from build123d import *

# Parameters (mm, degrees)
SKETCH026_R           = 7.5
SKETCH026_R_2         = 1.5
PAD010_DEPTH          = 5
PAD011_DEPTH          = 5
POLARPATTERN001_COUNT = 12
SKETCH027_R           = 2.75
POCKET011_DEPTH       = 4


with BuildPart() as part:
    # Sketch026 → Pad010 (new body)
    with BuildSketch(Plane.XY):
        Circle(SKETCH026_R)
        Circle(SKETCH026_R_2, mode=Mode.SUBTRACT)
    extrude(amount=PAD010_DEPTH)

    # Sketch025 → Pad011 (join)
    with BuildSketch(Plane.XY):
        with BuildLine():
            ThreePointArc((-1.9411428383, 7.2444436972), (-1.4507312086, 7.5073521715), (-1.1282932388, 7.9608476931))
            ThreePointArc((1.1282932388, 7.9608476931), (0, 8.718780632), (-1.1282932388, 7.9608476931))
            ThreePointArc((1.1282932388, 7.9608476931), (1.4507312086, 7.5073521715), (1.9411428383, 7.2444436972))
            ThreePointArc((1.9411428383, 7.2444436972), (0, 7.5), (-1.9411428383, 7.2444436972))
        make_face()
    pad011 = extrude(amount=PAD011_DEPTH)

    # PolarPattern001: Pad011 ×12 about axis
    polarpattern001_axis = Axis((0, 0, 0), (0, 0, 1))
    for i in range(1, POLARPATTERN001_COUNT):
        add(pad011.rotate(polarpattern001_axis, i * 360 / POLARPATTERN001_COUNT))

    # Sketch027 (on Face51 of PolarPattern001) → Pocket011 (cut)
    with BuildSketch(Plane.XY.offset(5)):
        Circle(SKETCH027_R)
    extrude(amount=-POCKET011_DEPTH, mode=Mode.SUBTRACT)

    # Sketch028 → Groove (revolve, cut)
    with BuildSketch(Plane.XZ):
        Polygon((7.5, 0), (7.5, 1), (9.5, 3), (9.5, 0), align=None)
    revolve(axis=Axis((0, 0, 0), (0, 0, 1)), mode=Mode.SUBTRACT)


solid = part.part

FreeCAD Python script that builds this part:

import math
import FreeCAD as App
import Part
import Sketcher
from FreeCAD import Vector
Q = App.Units.Quantity


def add_polygon(sketch, points):
    """Adds a closed chain of lines whose ends are joined by coincident constraints."""
    first, n = sketch.GeometryCount, len(points)
    for a, b in zip(points, points[1:] + points[:1]):
        sketch.addGeometry(Part.LineSegment(App.Vector(*a, 0), App.Vector(*b, 0)), False)
    for i in range(n):
        sketch.addConstraint(Sketcher.Constraint("Coincident", first + i, 2, first + (i + 1) % n, 1))

doc = App.newDocument("Part")
body = doc.addObject("PartDesign::Body", "Body")

# Sketch on XY plane
sketch1 = body.newObject("Sketcher::SketchObject", "Sketch")
sketch1.AttachmentSupport = (doc.getObject("XY_Plane"), [""])
sketch1.MapMode = "FlatFace"
sketch1.addGeometry(Part.Circle(Vector(0, 0, 0), Vector(0, 0, 1), 7.5), False)
sketch1.addGeometry(Part.Circle(Vector(0, 0, 0), Vector(0, 0, 1), 1.5), False)
sketch1.addConstraint(Sketcher.Constraint("Coincident", 0, 3, -1, 1))
sketch1.addConstraint(Sketcher.Constraint("Coincident", 1, 3, -1, 1))
sketch1.addConstraint(Sketcher.Constraint("Diameter", 0, Q("15 mm")))
sketch1.addConstraint(Sketcher.Constraint("Diameter", 1, Q("3 mm")))
pad1 = body.newObject("PartDesign::Pad", "Pad")
pad1.Profile = sketch1
pad1.Length = 5

# Sketch on XY plane
sketch2 = body.newObject("Sketcher::SketchObject", "Sketch001")
sketch2.AttachmentSupport = (doc.getObject("XY_Plane"), [""])
sketch2.MapMode = "FlatFace"
sketch2.addGeometry(Part.ArcOfCircle(Part.Circle(Vector(-2.3, 8.4, 0), Vector(0, 0, 1), 1.2), math.radians(-75), math.radians(-22)), False)
sketch2.addGeometry(Part.ArcOfCircle(Part.Circle(Vector(0, 0, 0), Vector(0, 0, 1), 7.5), math.radians(75), math.radians(105)), False)
sketch2.addGeometry(Part.ArcOfCircle(Part.Circle(Vector(2.3, 8.4, 0), Vector(0, 0, 1), 1.2), math.radians(-158), math.radians(-105)), False)
sketch2.addGeometry(Part.ArcOfCircle(Part.Circle(Vector(0, 7.5, 0), Vector(0, 0, 1), 1.2), math.radians(22), math.radians(158)), False)
sketch2.addConstraint(Sketcher.Constraint("Tangent", 0, 1, 1, 2))
sketch2.addConstraint(Sketcher.Constraint("Tangent", 1, 1, 2, 2))
sketch2.addConstraint(Sketcher.Constraint("Tangent", 2, 1, 3, 1))
sketch2.addConstraint(Sketcher.Constraint("Tangent", 3, 2, 0, 2))
sketch2.addConstraint(Sketcher.Constraint("Coincident", 1, 3, -1, 1))
sketch2.addConstraint(Sketcher.Constraint("Equal", 0, 2))
sketch2.addConstraint(Sketcher.Constraint("Equal", 2, 3))
sketch2.addConstraint(Sketcher.Constraint("PointOnObject", 3, 3, -2))
sketch2.addConstraint(Sketcher.Constraint("Radius", 1, Q("7.5 mm")))
sketch2.addConstraint(Sketcher.Constraint("DistanceY", -1, 1, 3, 3, Q("7.5 mm")))
sketch2.addConstraint(Sketcher.Constraint("Radius", 0, Q("1.218781 mm")))
pad2 = body.newObject("PartDesign::Pad", "Pad001")
pad2.Profile = sketch2
pad2.Length = 5
doc.recompute()

polarpattern = body.newObject("PartDesign::PolarPattern", "PolarPattern")
polarpattern.Originals = [pad2]
polarpattern.Axis = (doc.getObject("Z_Axis"), [""])
polarpattern.Angle = 360
polarpattern.Occurrences = 12
body.Tip = polarpattern

# Sketch on XY plane
sketch3 = body.newObject("Sketcher::SketchObject", "Sketch002")
sketch3.AttachmentSupport = (doc.getObject("XY_Plane"), [""])
sketch3.MapMode = "FlatFace"
sketch3.AttachmentOffset = App.Placement(Vector(0, 0, 5), App.Rotation())
sketch3.addGeometry(Part.Circle(Vector(0, 0, 0), Vector(0, 0, 1), 2.8), False)
sketch3.addConstraint(Sketcher.Constraint("Coincident", 0, 3, -1, 1))
sketch3.addConstraint(Sketcher.Constraint("Diameter", 0, Q("5.5 mm")))
pocket1 = body.newObject("PartDesign::Pocket", "Pocket")
pocket1.Profile = sketch3
pocket1.Length = 4

# Sketch on XZ plane
sketch4 = body.newObject("Sketcher::SketchObject", "Sketch003")
sketch4.AttachmentSupport = (doc.getObject("XZ_Plane"), [""])
sketch4.MapMode = "FlatFace"
add_polygon(sketch4, [(7.5, 1), (7.5, 0), (9.5, 0), (9.5, 3)])  # lines 0-3
sketch4.addConstraint(Sketcher.Constraint("Vertical", 0))
sketch4.addConstraint(Sketcher.Constraint("Horizontal", 1))
sketch4.addConstraint(Sketcher.Constraint("Vertical", 2))
sketch4.addConstraint(Sketcher.Constraint("PointOnObject", 0, 2, -1))
sketch4.addConstraint(Sketcher.Constraint("DistanceX", 1, 1, 1, 2, Q("2 mm")))
sketch4.addConstraint(Sketcher.Constraint("DistanceY", 0, 2, 0, 1, Q("1 mm")))
sketch4.addConstraint(Sketcher.Constraint("DistanceY", 2, 1, 2, 2, Q("3 mm")))
sketch4.addConstraint(Sketcher.Constraint("DistanceX", -1, 1, 0, 2, Q("7.5 mm")))
groove = body.newObject("PartDesign::Groove", "Groove")
groove.Profile = sketch4
groove.ReferenceAxis = (sketch4, ["V_Axis"])
groove.Angle = 360

doc.recompute()
